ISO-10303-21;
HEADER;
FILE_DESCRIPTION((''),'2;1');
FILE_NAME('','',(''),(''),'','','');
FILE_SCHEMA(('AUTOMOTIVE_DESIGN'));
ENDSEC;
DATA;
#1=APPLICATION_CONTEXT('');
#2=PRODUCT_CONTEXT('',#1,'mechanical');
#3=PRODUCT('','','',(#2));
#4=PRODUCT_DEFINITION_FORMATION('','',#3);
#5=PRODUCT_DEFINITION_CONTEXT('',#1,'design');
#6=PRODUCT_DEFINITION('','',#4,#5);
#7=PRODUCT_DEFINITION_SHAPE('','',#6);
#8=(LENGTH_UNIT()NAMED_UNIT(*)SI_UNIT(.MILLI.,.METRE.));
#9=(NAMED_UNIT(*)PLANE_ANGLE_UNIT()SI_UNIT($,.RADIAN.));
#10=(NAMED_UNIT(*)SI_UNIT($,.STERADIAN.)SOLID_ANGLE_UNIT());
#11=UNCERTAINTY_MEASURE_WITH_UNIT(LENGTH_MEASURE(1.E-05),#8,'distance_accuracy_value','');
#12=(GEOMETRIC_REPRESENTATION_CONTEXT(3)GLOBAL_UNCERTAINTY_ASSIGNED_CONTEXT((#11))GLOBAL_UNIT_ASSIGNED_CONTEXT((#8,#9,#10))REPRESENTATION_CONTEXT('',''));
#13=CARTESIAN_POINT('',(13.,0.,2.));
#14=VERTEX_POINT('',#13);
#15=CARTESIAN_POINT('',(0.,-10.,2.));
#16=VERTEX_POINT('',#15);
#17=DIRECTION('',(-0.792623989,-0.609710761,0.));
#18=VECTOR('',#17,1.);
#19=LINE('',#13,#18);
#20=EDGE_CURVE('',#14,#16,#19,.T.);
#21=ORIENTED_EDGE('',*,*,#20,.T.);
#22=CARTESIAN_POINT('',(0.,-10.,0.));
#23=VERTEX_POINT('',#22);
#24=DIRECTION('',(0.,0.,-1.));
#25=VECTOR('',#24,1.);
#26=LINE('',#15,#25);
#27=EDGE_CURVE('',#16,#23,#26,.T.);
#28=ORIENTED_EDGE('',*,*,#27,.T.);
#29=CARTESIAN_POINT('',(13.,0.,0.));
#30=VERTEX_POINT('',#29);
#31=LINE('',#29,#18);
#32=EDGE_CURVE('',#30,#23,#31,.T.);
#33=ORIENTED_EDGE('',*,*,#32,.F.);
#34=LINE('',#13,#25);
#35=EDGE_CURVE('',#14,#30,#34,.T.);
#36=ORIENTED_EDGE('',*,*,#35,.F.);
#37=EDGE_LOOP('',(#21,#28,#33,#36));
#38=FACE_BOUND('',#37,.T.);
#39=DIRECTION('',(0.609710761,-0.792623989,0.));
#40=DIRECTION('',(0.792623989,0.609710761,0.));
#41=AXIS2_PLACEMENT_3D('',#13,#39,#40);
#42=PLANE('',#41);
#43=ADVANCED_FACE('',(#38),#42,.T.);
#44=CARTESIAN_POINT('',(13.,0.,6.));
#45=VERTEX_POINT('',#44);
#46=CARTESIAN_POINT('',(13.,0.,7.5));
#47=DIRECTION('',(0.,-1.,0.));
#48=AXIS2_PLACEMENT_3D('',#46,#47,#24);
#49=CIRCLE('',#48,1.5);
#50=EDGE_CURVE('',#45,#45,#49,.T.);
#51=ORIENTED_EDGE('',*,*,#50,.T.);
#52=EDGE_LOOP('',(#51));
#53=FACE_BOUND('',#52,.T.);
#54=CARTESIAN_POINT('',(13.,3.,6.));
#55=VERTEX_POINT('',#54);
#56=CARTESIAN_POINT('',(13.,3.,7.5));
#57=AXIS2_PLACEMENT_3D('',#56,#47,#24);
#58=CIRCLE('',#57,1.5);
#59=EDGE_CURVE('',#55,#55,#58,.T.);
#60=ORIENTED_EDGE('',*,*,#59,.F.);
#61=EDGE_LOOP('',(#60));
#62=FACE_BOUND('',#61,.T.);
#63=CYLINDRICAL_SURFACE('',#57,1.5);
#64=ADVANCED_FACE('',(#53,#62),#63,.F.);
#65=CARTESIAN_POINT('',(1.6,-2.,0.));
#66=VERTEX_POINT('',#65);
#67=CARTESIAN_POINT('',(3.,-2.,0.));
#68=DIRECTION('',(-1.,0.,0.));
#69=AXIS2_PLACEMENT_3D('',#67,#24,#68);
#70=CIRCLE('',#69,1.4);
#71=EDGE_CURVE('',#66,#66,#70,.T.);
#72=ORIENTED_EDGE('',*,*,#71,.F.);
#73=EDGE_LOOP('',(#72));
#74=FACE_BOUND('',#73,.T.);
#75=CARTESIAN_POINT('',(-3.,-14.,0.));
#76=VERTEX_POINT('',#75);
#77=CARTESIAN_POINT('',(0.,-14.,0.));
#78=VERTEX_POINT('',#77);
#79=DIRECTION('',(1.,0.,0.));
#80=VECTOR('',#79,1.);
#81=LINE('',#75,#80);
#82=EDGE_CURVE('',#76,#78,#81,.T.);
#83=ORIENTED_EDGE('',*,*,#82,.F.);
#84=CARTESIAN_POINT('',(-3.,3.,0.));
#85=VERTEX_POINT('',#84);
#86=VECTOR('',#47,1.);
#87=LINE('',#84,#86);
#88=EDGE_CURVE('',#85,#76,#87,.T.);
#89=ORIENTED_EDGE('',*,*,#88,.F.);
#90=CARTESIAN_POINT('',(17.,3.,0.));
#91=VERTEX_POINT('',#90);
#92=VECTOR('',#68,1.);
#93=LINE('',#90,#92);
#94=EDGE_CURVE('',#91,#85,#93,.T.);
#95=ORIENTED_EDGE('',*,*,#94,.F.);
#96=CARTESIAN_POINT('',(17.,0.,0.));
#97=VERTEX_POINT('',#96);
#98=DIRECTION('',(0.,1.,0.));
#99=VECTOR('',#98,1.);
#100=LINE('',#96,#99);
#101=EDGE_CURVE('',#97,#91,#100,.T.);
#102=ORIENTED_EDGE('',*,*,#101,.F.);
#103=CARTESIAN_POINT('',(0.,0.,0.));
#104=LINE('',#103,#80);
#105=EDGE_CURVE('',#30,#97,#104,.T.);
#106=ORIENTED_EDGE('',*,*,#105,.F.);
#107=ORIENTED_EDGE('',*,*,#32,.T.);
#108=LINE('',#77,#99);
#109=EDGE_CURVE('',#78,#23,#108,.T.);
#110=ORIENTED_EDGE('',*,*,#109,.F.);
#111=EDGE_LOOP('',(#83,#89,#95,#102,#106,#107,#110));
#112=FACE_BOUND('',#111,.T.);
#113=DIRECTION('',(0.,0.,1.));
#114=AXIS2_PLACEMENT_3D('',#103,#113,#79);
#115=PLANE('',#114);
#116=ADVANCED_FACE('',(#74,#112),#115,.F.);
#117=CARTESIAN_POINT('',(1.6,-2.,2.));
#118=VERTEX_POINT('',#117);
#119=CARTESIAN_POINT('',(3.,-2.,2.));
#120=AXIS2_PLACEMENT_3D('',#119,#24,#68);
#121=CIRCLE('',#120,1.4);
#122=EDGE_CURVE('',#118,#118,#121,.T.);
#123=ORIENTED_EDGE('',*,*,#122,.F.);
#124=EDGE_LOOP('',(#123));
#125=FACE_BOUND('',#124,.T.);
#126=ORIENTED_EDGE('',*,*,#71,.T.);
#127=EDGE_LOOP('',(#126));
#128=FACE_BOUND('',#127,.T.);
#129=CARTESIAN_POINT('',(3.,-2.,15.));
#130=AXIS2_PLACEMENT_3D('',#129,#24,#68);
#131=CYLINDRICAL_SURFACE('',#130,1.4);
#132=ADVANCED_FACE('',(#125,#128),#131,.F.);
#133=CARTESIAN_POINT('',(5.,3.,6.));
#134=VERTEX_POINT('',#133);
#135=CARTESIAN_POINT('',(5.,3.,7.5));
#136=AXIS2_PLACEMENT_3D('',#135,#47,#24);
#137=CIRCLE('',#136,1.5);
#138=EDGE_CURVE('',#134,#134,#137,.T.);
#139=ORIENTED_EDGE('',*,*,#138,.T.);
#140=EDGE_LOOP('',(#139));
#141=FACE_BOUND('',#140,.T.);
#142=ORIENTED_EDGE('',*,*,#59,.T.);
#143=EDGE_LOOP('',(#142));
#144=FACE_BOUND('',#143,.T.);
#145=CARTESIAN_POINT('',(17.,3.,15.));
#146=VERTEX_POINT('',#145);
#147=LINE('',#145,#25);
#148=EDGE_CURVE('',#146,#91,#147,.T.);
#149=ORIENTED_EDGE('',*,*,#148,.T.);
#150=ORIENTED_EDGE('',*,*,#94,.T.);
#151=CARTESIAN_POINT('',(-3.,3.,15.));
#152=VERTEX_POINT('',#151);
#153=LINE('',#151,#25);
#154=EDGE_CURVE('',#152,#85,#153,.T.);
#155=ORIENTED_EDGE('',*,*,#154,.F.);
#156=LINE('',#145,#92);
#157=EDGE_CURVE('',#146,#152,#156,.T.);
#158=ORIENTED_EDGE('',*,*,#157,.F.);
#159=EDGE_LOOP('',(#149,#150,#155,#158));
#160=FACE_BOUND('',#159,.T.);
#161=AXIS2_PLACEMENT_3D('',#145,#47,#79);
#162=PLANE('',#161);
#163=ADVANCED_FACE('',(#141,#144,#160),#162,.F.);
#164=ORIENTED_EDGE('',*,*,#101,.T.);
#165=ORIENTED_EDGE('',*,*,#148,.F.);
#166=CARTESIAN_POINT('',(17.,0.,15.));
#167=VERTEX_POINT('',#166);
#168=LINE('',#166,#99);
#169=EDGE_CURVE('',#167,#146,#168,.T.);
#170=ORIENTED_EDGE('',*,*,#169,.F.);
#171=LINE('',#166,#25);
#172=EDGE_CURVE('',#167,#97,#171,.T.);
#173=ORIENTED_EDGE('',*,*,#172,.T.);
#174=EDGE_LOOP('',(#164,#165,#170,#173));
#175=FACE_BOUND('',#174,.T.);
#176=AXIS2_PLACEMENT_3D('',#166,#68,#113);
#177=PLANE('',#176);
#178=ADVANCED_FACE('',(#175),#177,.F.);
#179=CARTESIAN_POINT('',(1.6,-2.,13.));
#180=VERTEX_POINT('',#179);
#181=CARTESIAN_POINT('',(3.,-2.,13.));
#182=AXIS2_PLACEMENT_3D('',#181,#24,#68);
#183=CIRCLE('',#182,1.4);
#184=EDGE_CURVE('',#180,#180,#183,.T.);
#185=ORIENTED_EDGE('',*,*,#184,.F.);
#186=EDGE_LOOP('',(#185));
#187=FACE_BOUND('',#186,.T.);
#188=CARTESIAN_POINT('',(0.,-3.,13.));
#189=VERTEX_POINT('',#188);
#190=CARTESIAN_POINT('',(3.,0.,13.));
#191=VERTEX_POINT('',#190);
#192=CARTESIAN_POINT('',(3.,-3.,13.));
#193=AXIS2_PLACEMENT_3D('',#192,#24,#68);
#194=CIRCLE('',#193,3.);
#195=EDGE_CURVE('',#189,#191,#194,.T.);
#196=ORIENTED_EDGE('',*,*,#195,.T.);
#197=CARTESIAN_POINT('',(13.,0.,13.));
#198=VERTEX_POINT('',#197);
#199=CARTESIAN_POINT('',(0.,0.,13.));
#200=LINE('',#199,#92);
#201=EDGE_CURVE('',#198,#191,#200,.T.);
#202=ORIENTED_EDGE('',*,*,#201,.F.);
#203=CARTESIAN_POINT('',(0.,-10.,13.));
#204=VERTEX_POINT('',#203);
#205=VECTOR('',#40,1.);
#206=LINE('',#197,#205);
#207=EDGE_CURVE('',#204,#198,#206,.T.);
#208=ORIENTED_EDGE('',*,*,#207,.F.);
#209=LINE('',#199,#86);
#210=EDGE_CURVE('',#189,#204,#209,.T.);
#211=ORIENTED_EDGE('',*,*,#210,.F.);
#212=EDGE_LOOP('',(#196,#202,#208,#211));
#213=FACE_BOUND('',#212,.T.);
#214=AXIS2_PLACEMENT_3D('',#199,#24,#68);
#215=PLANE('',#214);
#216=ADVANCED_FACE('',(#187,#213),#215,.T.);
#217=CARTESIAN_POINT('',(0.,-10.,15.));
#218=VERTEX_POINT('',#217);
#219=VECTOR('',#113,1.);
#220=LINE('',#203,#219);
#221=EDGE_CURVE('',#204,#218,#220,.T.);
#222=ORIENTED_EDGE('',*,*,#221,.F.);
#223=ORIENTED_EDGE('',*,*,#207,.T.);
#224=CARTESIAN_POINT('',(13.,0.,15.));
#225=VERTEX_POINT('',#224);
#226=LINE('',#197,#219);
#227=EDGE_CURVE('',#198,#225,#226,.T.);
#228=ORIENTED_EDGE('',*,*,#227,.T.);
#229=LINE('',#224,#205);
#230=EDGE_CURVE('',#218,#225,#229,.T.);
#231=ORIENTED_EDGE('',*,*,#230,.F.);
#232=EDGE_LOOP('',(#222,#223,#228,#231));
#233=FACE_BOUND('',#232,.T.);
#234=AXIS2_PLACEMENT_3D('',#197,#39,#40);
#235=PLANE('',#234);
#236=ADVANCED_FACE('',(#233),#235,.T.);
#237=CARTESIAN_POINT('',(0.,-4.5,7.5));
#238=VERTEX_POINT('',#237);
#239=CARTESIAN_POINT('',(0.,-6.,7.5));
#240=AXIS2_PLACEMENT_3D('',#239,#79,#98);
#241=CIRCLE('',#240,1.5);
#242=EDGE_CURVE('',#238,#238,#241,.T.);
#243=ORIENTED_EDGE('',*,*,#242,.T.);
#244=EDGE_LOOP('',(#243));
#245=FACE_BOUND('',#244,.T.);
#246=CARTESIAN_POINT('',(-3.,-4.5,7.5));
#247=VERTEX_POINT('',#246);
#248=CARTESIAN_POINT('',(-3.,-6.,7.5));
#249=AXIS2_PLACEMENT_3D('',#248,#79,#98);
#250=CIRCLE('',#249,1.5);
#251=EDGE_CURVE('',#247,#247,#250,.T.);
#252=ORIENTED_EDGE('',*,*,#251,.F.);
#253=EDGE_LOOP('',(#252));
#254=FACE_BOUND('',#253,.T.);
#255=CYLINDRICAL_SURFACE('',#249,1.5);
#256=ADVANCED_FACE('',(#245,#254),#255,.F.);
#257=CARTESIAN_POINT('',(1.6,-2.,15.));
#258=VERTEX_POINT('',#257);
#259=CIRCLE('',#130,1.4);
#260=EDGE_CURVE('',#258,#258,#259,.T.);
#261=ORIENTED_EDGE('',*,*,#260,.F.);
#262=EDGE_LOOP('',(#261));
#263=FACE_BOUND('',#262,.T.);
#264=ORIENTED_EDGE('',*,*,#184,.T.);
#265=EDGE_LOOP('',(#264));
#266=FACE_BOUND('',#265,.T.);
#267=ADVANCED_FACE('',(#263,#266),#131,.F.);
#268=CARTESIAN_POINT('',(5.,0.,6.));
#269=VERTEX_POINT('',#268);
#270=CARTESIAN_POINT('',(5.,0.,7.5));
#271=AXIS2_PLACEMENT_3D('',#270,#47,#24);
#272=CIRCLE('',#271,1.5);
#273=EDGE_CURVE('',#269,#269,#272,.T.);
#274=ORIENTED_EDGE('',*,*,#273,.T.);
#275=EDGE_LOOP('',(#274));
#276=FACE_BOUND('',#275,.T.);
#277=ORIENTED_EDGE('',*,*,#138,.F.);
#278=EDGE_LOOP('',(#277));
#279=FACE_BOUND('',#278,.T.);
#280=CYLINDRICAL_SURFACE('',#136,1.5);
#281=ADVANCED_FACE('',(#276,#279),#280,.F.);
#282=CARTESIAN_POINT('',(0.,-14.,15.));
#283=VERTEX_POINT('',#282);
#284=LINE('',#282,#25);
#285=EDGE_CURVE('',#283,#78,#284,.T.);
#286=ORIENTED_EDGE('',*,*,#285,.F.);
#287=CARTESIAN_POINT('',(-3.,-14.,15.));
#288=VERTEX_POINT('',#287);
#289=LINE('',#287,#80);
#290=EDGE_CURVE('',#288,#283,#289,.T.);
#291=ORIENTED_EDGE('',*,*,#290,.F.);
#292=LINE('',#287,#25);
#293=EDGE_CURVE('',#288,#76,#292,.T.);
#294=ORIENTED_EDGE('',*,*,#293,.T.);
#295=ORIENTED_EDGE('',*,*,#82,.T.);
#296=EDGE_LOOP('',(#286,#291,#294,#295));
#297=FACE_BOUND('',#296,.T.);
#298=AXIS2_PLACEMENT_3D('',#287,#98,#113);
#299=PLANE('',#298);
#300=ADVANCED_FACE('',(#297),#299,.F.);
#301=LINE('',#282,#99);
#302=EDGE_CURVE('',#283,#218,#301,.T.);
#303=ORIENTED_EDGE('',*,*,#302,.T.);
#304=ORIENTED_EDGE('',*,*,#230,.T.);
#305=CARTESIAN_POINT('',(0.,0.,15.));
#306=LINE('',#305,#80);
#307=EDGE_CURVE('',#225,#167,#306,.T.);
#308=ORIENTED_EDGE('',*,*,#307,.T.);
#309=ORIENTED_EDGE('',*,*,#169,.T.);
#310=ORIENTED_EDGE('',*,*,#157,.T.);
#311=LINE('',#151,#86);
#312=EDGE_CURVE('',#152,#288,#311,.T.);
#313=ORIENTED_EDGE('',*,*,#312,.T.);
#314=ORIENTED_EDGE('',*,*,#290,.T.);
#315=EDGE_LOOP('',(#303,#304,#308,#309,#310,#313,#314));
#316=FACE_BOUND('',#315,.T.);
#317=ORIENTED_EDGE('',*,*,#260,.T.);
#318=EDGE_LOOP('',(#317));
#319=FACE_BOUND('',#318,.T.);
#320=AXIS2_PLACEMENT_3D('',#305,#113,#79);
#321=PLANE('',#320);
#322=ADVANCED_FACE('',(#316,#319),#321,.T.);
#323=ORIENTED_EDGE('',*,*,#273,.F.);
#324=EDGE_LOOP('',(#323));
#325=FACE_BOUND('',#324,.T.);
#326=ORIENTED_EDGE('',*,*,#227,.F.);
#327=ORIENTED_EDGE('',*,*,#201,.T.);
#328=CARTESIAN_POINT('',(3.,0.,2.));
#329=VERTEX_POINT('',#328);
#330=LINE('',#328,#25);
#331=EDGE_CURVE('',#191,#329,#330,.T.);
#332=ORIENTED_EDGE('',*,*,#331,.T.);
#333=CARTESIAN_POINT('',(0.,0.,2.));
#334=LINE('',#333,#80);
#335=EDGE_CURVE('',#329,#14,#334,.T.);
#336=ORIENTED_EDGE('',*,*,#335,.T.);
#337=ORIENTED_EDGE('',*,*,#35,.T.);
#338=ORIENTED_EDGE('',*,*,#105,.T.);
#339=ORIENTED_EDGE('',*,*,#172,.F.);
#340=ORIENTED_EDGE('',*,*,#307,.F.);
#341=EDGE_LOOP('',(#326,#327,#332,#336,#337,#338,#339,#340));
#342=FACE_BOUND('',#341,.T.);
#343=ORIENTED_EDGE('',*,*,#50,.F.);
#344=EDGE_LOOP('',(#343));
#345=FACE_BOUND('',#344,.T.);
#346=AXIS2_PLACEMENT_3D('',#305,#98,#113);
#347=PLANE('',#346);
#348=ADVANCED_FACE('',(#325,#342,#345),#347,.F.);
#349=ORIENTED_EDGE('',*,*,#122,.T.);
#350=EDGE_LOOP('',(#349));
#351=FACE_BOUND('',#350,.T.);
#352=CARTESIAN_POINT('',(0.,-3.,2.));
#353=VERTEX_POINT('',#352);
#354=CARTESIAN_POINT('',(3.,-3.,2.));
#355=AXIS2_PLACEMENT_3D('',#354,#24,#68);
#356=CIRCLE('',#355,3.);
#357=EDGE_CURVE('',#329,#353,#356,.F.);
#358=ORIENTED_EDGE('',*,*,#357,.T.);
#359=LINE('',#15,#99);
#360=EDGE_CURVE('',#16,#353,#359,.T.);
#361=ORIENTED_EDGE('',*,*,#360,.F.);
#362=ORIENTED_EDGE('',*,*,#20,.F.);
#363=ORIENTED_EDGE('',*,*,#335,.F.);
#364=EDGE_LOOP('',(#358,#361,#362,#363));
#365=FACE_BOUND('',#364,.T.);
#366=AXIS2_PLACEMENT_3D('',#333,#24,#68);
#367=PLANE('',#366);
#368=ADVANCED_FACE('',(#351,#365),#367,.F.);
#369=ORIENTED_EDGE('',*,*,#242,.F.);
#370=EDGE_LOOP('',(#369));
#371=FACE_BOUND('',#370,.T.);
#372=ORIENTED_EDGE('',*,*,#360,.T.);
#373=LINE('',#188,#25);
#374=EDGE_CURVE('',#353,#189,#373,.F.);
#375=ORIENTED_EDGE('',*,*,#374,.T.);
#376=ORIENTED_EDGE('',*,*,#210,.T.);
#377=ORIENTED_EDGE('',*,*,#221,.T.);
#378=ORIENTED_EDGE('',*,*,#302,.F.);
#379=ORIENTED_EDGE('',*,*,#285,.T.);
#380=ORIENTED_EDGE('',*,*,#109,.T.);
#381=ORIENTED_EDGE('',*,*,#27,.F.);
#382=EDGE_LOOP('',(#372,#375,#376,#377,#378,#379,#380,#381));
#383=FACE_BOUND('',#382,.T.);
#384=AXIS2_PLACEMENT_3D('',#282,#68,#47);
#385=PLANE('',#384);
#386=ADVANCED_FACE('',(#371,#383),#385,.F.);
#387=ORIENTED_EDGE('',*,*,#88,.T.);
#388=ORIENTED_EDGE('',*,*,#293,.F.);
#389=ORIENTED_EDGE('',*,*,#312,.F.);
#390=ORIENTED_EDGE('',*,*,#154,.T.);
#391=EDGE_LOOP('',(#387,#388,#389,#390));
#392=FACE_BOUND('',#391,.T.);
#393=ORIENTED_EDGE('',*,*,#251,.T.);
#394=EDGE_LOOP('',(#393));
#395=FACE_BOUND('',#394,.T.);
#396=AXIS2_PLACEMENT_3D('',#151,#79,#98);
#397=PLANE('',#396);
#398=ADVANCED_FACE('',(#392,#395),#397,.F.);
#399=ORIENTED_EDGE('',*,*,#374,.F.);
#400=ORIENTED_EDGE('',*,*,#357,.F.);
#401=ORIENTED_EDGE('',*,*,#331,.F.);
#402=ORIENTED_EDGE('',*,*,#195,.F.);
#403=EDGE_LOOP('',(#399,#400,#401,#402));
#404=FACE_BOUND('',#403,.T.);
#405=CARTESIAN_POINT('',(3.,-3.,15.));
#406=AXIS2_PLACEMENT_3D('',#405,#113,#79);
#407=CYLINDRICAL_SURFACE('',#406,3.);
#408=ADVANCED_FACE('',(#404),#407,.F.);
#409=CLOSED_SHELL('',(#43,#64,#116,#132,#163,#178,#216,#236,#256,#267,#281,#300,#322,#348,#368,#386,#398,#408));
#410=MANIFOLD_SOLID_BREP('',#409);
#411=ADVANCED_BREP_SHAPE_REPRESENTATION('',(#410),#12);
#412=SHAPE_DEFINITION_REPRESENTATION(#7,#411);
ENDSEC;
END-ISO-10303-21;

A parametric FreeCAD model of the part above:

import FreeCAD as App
import Part
import Sketcher

V = App.Vector


def edges_at(feature, points):
    """Names of the edges that pass closest to the given points."""
    edges = feature.Shape.Edges
    near = lambda p: min(range(len(edges)), key=lambda i: edges[i].distToShape(Part.Vertex(*p))[0])
    return sorted({f"Edge{near(p) + 1}" for p in points})

doc = App.newDocument("Part")
body = doc.addObject("PartDesign::Body", "Body")

# Sketch on XY plane
sketch1 = doc.addObject("Sketcher::SketchObject", "Sketch")
body.addObject(sketch1)
sketch1.AttachmentSupport = (doc.XY_Plane, [""])
sketch1.MapMode = "FlatFace"
sketch1.addGeometry(Part.LineSegment(V(0, -14, 0), V(0, 0, 0)), False)
sketch1.addGeometry(Part.LineSegment(V(0, 0, 0), V(17, 0, 0)), False)
sketch1.addGeometry(Part.LineSegment(V(17, 0, 0), V(17, 3, 0)), False)
sketch1.addGeometry(Part.LineSegment(V(17, 3, 0), V(-3, 3, 0)), False)
sketch1.addGeometry(Part.LineSegment(V(-3, 3, 0), V(-3, -14, 0)), False)
sketch1.addGeometry(Part.LineSegment(V(-3, -14, 0), V(0, -14, 0)), False)
sketch1.addConstraint(Sketcher.Constraint("Coincident", 0, 2, 1, 1))
sketch1.addConstraint(Sketcher.Constraint("Coincident", 1, 2, 2, 1))
sketch1.addConstraint(Sketcher.Constraint("Coincident", 2, 2, 3, 1))
sketch1.addConstraint(Sketcher.Constraint("Coincident", 3, 2, 4, 1))
sketch1.addConstraint(Sketcher.Constraint("Coincident", 4, 2, 5, 1))
sketch1.addConstraint(Sketcher.Constraint("Coincident", 5, 2, 0, 1))
sketch1.addConstraint(Sketcher.Constraint("Vertical", 0))
sketch1.addConstraint(Sketcher.Constraint("Horizontal", 1))
sketch1.addConstraint(Sketcher.Constraint("Vertical", 2))
sketch1.addConstraint(Sketcher.Constraint("Horizontal", 3))
sketch1.addConstraint(Sketcher.Constraint("Vertical", 4))
sketch1.addConstraint(Sketcher.Constraint("Horizontal", 5))
sketch1.addConstraint(Sketcher.Constraint("Coincident", 0, 2, -1, 1))
sketch1.addConstraint(Sketcher.Constraint("Equal", 5, 2))
sketch1.addConstraint(Sketcher.Constraint("Equal", 1, 4))
sketch1.addConstraint(Sketcher.Constraint("DistanceX", 1, 1, 1, 2, 17.0))
sketch1.addConstraint(Sketcher.Constraint("DistanceX", 3, 2, 3, 1, 20.0))
pad1 = doc.addObject("PartDesign::Pad", "Pad")
body.addObject(pad1)
pad1.Profile = sketch1
pad1.Length = 15

# Sketch on YZ plane
sketch2 = doc.addObject("Sketcher::SketchObject", "Sketch001")
body.addObject(sketch2)
sketch2.AttachmentSupport = (doc.YZ_Plane, [""])
sketch2.MapMode = "FlatFace"
sketch2.addGeometry(Part.Circle(V(-6, 7.5, 0), V(0, 0, 1), 1.5), False)
sketch2.addConstraint(Sketcher.Constraint("Diameter", 0, 3.0))
sketch2.addConstraint(Sketcher.Constraint("DistanceX", 0, 3, -1, 1, 6.0))
sketch2.addConstraint(Sketcher.Constraint("DistanceY", -1, 1, 0, 3, 7.5))
pocket1 = doc.addObject("PartDesign::Pocket", "Pocket")
body.addObject(pocket1)
pocket1.Profile = sketch2
pocket1.Length = 3

# Sketch on XZ plane
sketch3 = doc.addObject("Sketcher::SketchObject", "Sketch002")
body.addObject(sketch3)
sketch3.AttachmentSupport = (doc.XZ_Plane, [""])
sketch3.MapMode = "FlatFace"
sketch3.addGeometry(Part.Circle(V(13, 7.5, 0), V(0, 0, 1), 1.5), False)
sketch3.addGeometry(Part.Circle(V(5, 7.5, 0), V(0, 0, 1), 1.5), False)
sketch3.addConstraint(Sketcher.Constraint("Equal", 0, 1))
sketch3.addConstraint(Sketcher.Constraint("Horizontal", 0, 3, 1, 3))
sketch3.addConstraint(Sketcher.Constraint("Diameter", 0, 3.0))
sketch3.addConstraint(Sketcher.Constraint("DistanceX", -1, 1, 0, 3, 13.0))
sketch3.addConstraint(Sketcher.Constraint("DistanceX", -1, 1, 1, 3, 5.0))
sketch3.addConstraint(Sketcher.Constraint("DistanceY", -1, 1, 0, 3, 7.5))
pocket2 = doc.addObject("PartDesign::Pocket", "Pocket001")
body.addObject(pocket2)
pocket2.Profile = sketch3
pocket2.Length = 3

# Sketch on XY plane
sketch4 = doc.addObject("Sketcher::SketchObject", "Sketch003")
body.addObject(sketch4)
sketch4.AttachmentSupport = (doc.XY_Plane, [""])
sketch4.MapMode = "FlatFace"
sketch4.AttachmentOffset = App.Placement(V(0, 0, 15), App.Rotation())
sketch4.addGeometry(Part.LineSegment(V(0, 0, 0), V(0, -10, 0)), False)
sketch4.addGeometry(Part.LineSegment(V(0, -10, 0), V(13, 0, 0)), False)
sketch4.addGeometry(Part.LineSegment(V(13, 0, 0), V(0, 0, 0)), False)
sketch4.addConstraint(Sketcher.Constraint("Coincident", 0, 2, 1, 1))
sketch4.addConstraint(Sketcher.Constraint("Coincident", 1, 2, 2, 1))
sketch4.addConstraint(Sketcher.Constraint("Coincident", 2, 2, 0, 1))
sketch4.addConstraint(Sketcher.Constraint("Vertical", 0))
sketch4.addConstraint(Sketcher.Constraint("Horizontal", 2))
sketch4.addConstraint(Sketcher.Constraint("Coincident", 2, 2, -1, 1))
sketch4.addConstraint(Sketcher.Constraint("DistanceX", 2, 2, 2, 1, 13.0))
sketch4.addConstraint(Sketcher.Constraint("DistanceY", 0, 2, 0, 1, 10.0))
pad2 = doc.addObject("PartDesign::Pad", "Pad001")
body.addObject(pad2)
pad2.Profile = sketch4
pad2.Length = 2
pad2.Reversed = True

# Sketch on XY plane
sketch5 = doc.addObject("Sketcher::SketchObject", "Sketch004")
body.addObject(sketch5)
sketch5.AttachmentSupport = (doc.XY_Plane, [""])
sketch5.MapMode = "FlatFace"
sketch5.addGeometry(Part.LineSegment(V(0, 0, 0), V(13, 0, 0)), False)
sketch5.addGeometry(Part.LineSegment(V(13, 0, 0), V(0, -10, 0)), False)
sketch5.addGeometry(Part.LineSegment(V(0, -10, 0), V(0, 0, 0)), False)
sketch5.addConstraint(Sketcher.Constraint("Coincident", 0, 2, 1, 1))
sketch5.addConstraint(Sketcher.Constraint("Coincident", 1, 2, 2, 1))
sketch5.addConstraint(Sketcher.Constraint("Coincident", 2, 2, 0, 1))
sketch5.addConstraint(Sketcher.Constraint("Horizontal", 0))
sketch5.addConstraint(Sketcher.Constraint("Vertical", 2))
sketch5.addConstraint(Sketcher.Constraint("Coincident", 2, 2, -1, 1))
sketch5.addConstraint(Sketcher.Constraint("DistanceX", 0, 1, 0, 2, 13.0))
sketch5.addConstraint(Sketcher.Constraint("DistanceY", 2, 1, 2, 2, 10.0))
pad3 = doc.addObject("PartDesign::Pad", "Pad002")
body.addObject(pad3)
pad3.Profile = sketch5
pad3.Length = 2

# Sketch on XY plane
sketch6 = doc.addObject("Sketcher::SketchObject", "Sketch005")
body.addObject(sketch6)
sketch6.AttachmentSupport = (doc.XY_Plane, [""])
sketch6.MapMode = "FlatFace"
sketch6.addGeometry(Part.Circle(V(3, -2, 0), V(0, 0, 1), 1.4), False)
sketch6.addConstraint(Sketcher.Constraint("Diameter", 0, 2.8))
sketch6.addConstraint(Sketcher.Constraint("DistanceX", -1, 1, 0, 3, 3.0))
sketch6.addConstraint(Sketcher.Constraint("DistanceY", 0, 3, -1, 1, 2.0))
pocket3 = doc.addObject("PartDesign::Pocket", "Pocket002")
body.addObject(pocket3)
pocket3.Profile = sketch6
pocket3.Type = "ThroughAll"
pocket3.Reversed = True
doc.recompute()

fillet = doc.addObject("PartDesign::Fillet", "Fillet")
body.addObject(fillet)
fillet.Base = (pocket3, edges_at(pocket3, [(0, 0, 7.5)]))
fillet.Radius = 3

doc.recompute()
